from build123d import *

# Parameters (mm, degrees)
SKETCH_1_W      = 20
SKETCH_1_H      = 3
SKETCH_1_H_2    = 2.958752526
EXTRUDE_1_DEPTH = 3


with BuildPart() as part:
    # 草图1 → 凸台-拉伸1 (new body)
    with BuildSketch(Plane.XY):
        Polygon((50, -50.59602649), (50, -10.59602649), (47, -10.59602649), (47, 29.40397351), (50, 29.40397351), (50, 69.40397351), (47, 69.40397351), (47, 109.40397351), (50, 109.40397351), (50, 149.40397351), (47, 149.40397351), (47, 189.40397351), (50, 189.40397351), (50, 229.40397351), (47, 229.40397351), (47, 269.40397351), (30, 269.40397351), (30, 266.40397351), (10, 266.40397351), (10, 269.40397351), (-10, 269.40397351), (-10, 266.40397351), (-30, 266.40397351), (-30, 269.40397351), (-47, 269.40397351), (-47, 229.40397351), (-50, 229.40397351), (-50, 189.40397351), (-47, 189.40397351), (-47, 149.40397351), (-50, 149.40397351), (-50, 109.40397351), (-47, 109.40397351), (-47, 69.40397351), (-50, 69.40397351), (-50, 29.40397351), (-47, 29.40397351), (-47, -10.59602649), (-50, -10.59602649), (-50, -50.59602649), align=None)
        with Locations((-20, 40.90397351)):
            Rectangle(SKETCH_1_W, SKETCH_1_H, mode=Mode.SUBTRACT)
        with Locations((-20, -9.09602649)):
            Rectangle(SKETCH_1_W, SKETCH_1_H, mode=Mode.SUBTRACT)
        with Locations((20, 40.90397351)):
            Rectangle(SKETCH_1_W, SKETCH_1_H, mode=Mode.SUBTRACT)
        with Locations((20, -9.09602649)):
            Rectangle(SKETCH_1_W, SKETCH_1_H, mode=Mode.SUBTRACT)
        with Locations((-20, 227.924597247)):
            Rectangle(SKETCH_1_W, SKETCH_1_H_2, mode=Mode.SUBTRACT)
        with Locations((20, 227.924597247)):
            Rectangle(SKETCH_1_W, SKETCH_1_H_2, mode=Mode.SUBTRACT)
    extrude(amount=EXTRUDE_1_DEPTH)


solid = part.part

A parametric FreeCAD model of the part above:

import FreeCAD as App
import Part
import Sketcher
from FreeCAD import Vector

doc = App.newDocument("Part")
body = doc.addObject("PartDesign::Body", "Body")

# Sketch on XY plane
sketch1 = body.newObject("Sketcher::SketchObject", "Sketch")
sketch1.AttachmentSupport = (doc.getObject("XY_Plane"), [""])
sketch1.MapMode = "FlatFace"
sketch1.addGeometry(Part.LineSegment(Vector(50, -50.6, 0), Vector(50, -10.6, 0)), False)
sketch1.addGeometry(Part.LineSegment(Vector(50, -10.6, 0), Vector(47, -10.6, 0)), False)
sketch1.addGeometry(Part.LineSegment(Vector(47, -10.6, 0), Vector(47, 29.4, 0)), False)
sketch1.addGeometry(Part.LineSegment(Vector(47, 29.4, 0), Vector(50, 29.4, 0)), False)
sketch1.addGeometry(Part.LineSegment(Vector(50, 29.4, 0), Vector(50, 69.4, 0)), False)
sketch1.addGeometry(Part.LineSegment(Vector(50, 69.4, 0), Vector(47, 69.4, 0)), False)
sketch1.addGeometry(Part.LineSegment(Vector(47, 69.4, 0), Vector(47, 109.4, 0)), False)
sketch1.addGeometry(Part.LineSegment(Vector(47, 109.4, 0), Vector(50, 109.4, 0)), False)
sketch1.addGeometry(Part.LineSegment(Vector(50, 109.4, 0), Vector(50, 149.4, 0)), False)
sketch1.addGeometry(Part.LineSegment(Vector(50, 149.4, 0), Vector(47, 149.4, 0)), False)
sketch1.addGeometry(Part.LineSegment(Vector(47, 149.4, 0), Vector(47, 189.4, 0)), False)
sketch1.addGeometry(Part.LineSegment(Vector(47, 189.4, 0), Vector(50, 189.4, 0)), False)
sketch1.addGeometry(Part.LineSegment(Vector(50, 189.4, 0), Vector(50, 229.4, 0)), False)
sketch1.addGeometry(Part.LineSegment(Vector(50, 229.4, 0), Vector(47, 229.4, 0)), False)
sketch1.addGeometry(Part.LineSegment(Vector(47, 229.4, 0), Vector(47, 269.4, 0)), False)
sketch1.addGeometry(Part.LineSegment(Vector(47, 269.4, 0), Vector(30, 269.4, 0)), False)
sketch1.addGeometry(Part.LineSegment(Vector(30, 269.4, 0), Vector(30, 266.4, 0)), False)
sketch1.addGeometry(Part.LineSegment(Vector(30, 266.4, 0), Vector(10, 266.4, 0)), False)
sketch1.addGeometry(Part.LineSegment(Vector(10, 266.4, 0), Vector(10, 269.4, 0)), False)
sketch1.addGeometry(Part.LineSegment(Vector(10, 269.4, 0), Vector(-10, 269.4, 0)), False)
sketch1.addGeometry(Part.LineSegment(Vector(-10, 269.4, 0), Vector(-10, 266.4, 0)), False)
sketch1.addGeometry(Part.LineSegment(Vector(-10, 266.4, 0), Vector(-30, 266.4, 0)), False)
sketch1.addGeometry(Part.LineSegment(Vector(-30, 266.4, 0), Vector(-30, 269.4, 0)), False)
sketch1.addGeometry(Part.LineSegment(Vector(-30, 269.4, 0), Vector(-47, 269.4, 0)), False)
sketch1.addGeometry(Part.LineSegment(Vector(-47, 269.4, 0), Vector(-47, 229.4, 0)), False)
sketch1.addGeometry(Part.LineSegment(Vector(-47, 229.4, 0), Vector(-50, 229.4, 0)), False)
sketch1.addGeometry(Part.LineSegment(Vector(-50, 229.4, 0), Vector(-50, 189.4, 0)), False)
sketch1.addGeometry(Part.LineSegment(Vector(-50, 189.4, 0), Vector(-47, 189.4, 0)), False)
sketch1.addGeometry(Part.LineSegment(Vector(-47, 189.4, 0), Vector(-47, 149.4, 0)), False)
sketch1.addGeometry(Part.LineSegment(Vector(-47, 149.4, 0), Vector(-50, 149.4, 0)), False)
sketch1.addGeometry(Part.LineSegment(Vector(-50, 149.4, 0), Vector(-50, 109.4, 0)), False)
sketch1.addGeometry(Part.LineSegment(Vector(-50, 109.4, 0), Vector(-47, 109.4, 0)), False)
sketch1.addGeometry(Part.LineSegment(Vector(-47, 109.4, 0), Vector(-47, 69.4, 0)), False)
sketch1.addGeometry(Part.LineSegment(Vector(-47, 69.4, 0), Vector(-50, 69.4, 0)), False)
sketch1.addGeometry(Part.LineSegment(Vector(-50, 69.4, 0), Vector(-50, 29.4, 0)), False)
sketch1.addGeometry(Part.LineSegment(Vector(-50, 29.4, 0), Vector(-47, 29.4, 0)), False)
sketch1.addGeometry(Part.LineSegment(Vector(-47, 29.4, 0), Vector(-47, -10.6, 0)), False)
sketch1.addGeometry(Part.LineSegment(Vector(-47, -10.6, 0), Vector(-50, -10.6, 0)), False)
sketch1.addGeometry(Part.LineSegment(Vector(-50, -10.6, 0), Vector(-50, -50.6, 0)), False)
sketch1.addGeometry(Part.LineSegment(Vector(-50, -50.6, 0), Vector(50, -50.6, 0)), False)
sketch1.addGeometry(Part.LineSegment(Vector(-10, -10.6, 0), Vector(-30, -10.6, 0)), False)
sketch1.addGeometry(Part.LineSegment(Vector(-30, -10.6, 0), Vector(-30, -7.6, 0)), False)
sketch1.addGeometry(Part.LineSegment(Vector(-30, -7.6, 0), Vector(-10, -7.6, 0)), False)
sketch1.addGeometry(Part.LineSegment(Vector(-10, -7.6, 0), Vector(-10, -10.6, 0)), False)
sketch1.addGeometry(Part.LineSegment(Vector(-10, 39.4, 0), Vector(-30, 39.4, 0)), False)
sketch1.addGeometry(Part.LineSegment(Vector(-30, 39.4, 0), Vector(-30, 42.4, 0)), False)
sketch1.addGeometry(Part.LineSegment(Vector(-30, 42.4, 0), Vector(-10, 42.4, 0)), False)
sketch1.addGeometry(Part.LineSegment(Vector(-10, 42.4, 0), Vector(-10, 39.4, 0)), False)
sketch1.addGeometry(Part.LineSegment(Vector(30, -10.6, 0), Vector(10, -10.6, 0)), False)
sketch1.addGeometry(Part.LineSegment(Vector(10, -10.6, 0), Vector(10, -7.6, 0)), False)
sketch1.addGeometry(Part.LineSegment(Vector(10, -7.6, 0), Vector(30, -7.6, 0)), False)
sketch1.addGeometry(Part.LineSegment(Vector(30, -7.6, 0), Vector(30, -10.6, 0)), False)
sketch1.addGeometry(Part.LineSegment(Vector(30, 39.4, 0), Vector(10, 39.4, 0)), False)
sketch1.addGeometry(Part.LineSegment(Vector(10, 39.4, 0), Vector(10, 42.4, 0)), False)
sketch1.addGeometry(Part.LineSegment(Vector(10, 42.4, 0), Vector(30, 42.4, 0)), False)
sketch1.addGeometry(Part.LineSegment(Vector(30, 42.4, 0), Vector(30, 39.4, 0)), False)
sketch1.addGeometry(Part.LineSegment(Vector(-10, 226.4, 0), Vector(-30, 226.4, 0)), False)
sketch1.addGeometry(Part.LineSegment(Vector(-30, 226.4, 0), Vector(-30, 229.4, 0)), False)
sketch1.addGeometry(Part.LineSegment(Vector(-30, 229.4, 0), Vector(-10, 229.4, 0)), False)
sketch1.addGeometry(Part.LineSegment(Vector(-10, 229.4, 0), Vector(-10, 226.4, 0)), False)
sketch1.addGeometry(Part.LineSegment(Vector(30, 226.4, 0), Vector(10, 226.4, 0)), False)
sketch1.addGeometry(Part.LineSegment(Vector(10, 226.4, 0), Vector(10, 229.4, 0)), False)
sketch1.addGeometry(Part.LineSegment(Vector(10, 229.4, 0), Vector(30, 229.4, 0)), False)
sketch1.addGeometry(Part.LineSegment(Vector(30, 229.4, 0), Vector(30, 226.4, 0)), False)
sketch1.addConstraint(Sketcher.Constraint("Coincident", 0, 2, 1, 1))
sketch1.addConstraint(Sketcher.Constraint("Coincident", 1, 2, 2, 1))
sketch1.addConstraint(Sketcher.Constraint("Coincident", 2, 2, 3, 1))
sketch1.addConstraint(Sketcher.Constraint("Coincident", 3, 2, 4, 1))
sketch1.addConstraint(Sketcher.Constraint("Coincident", 4, 2, 5, 1))
sketch1.addConstraint(Sketcher.Constraint("Coincident", 5, 2, 6, 1))
sketch1.addConstraint(Sketcher.Constraint("Coincident", 6, 2, 7, 1))
sketch1.addConstraint(Sketcher.Constraint("Coincident", 7, 2, 8, 1))
sketch1.addConstraint(Sketcher.Constraint("Coincident", 8, 2, 9, 1))
sketch1.addConstraint(Sketcher.Constraint("Coincident", 9, 2, 10, 1))
sketch1.addConstraint(Sketcher.Constraint("Coincident", 10, 2, 11, 1))
sketch1.addConstraint(Sketcher.Constraint("Coincident", 11, 2, 12, 1))
sketch1.addConstraint(Sketcher.Constraint("Coincident", 12, 2, 13, 1))
sketch1.addConstraint(Sketcher.Constraint("Coincident", 13, 2, 14, 1))
sketch1.addConstraint(Sketcher.Constraint("Coincident", 14, 2, 15, 1))
sketch1.addConstraint(Sketcher.Constraint("Coincident", 15, 2, 16, 1))
sketch1.addConstraint(Sketcher.Constraint("Coincident", 16, 2, 17, 1))
sketch1.addConstraint(Sketcher.Constraint("Coincident", 17, 2, 18, 1))
sketch1.addConstraint(Sketcher.Constraint("Coincident", 18, 2, 19, 1))
sketch1.addConstraint(Sketcher.Constraint("Coincident", 19, 2, 20, 1))
sketch1.addConstraint(Sketcher.Constraint("Coincident", 20, 2, 21, 1))
sketch1.addConstraint(Sketcher.Constraint("Coincident", 21, 2, 22, 1))
sketch1.addConstraint(Sketcher.Constraint("Coincident", 22, 2, 23, 1))
sketch1.addConstraint(Sketcher.Constraint("Coincident", 23, 2, 24, 1))
sketch1.addConstraint(Sketcher.Constraint("Coincident", 24, 2, 25, 1))
sketch1.addConstraint(Sketcher.Constraint("Coincident", 25, 2, 26, 1))
sketch1.addConstraint(Sketcher.Constraint("Coincident", 26, 2, 27, 1))
sketch1.addConstraint(Sketcher.Constraint("Coincident", 27, 2, 28, 1))
sketch1.addConstraint(Sketcher.Constraint("Coincident", 28, 2, 29, 1))
sketch1.addConstraint(Sketcher.Constraint("Coincident", 29, 2, 30, 1))
sketch1.addConstraint(Sketcher.Constraint("Coincident", 30, 2, 31, 1))
sketch1.addConstraint(Sketcher.Constraint("Coincident", 31, 2, 32, 1))
sketch1.addConstraint(Sketcher.Constraint("Coincident", 32, 2, 33, 1))
sketch1.addConstraint(Sketcher.Constraint("Coincident", 33, 2, 34, 1))
sketch1.addConstraint(Sketcher.Constraint("Coincident", 34, 2, 35, 1))
sketch1.addConstraint(Sketcher.Constraint("Coincident", 35, 2, 36, 1))
sketch1.addConstraint(Sketcher.Constraint("Coincident", 36, 2, 37, 1))
sketch1.addConstraint(Sketcher.Constraint("Coincident", 37, 2, 38, 1))
sketch1.addConstraint(Sketcher.Constraint("Coincident", 38, 2, 39, 1))
sketch1.addConstraint(Sketcher.Constraint("Coincident", 39, 2, 0, 1))
sketch1.addConstraint(Sketcher.Constraint("Coincident", 40, 2, 41, 1))
sketch1.addConstraint(Sketcher.Constraint("Coincident", 41, 2, 42, 1))
sketch1.addConstraint(Sketcher.Constraint("Coincident", 42, 2, 43, 1))
sketch1.addConstraint(Sketcher.Constraint("Coincident", 43, 2, 40, 1))
sketch1.addConstraint(Sketcher.Constraint("Coincident", 44, 2, 45, 1))
sketch1.addConstraint(Sketcher.Constraint("Coincident", 45, 2, 46, 1))
sketch1.addConstraint(Sketcher.Constraint("Coincident", 46, 2, 47, 1))
sketch1.addConstraint(Sketcher.Constraint("Coincident", 47, 2, 44, 1))
sketch1.addConstraint(Sketcher.Constraint("Coincident", 48, 2, 49, 1))
sketch1.addConstraint(Sketcher.Constraint("Coincident", 49, 2, 50, 1))
sketch1.addConstraint(Sketcher.Constraint("Coincident", 50, 2, 51, 1))
sketch1.addConstraint(Sketcher.Constraint("Coincident", 51, 2, 48, 1))
sketch1.addConstraint(Sketcher.Constraint("Coincident", 52, 2, 53, 1))
sketch1.addConstraint(Sketcher.Constraint("Coincident", 53, 2, 54, 1))
sketch1.addConstraint(Sketcher.Constraint("Coincident", 54, 2, 55, 1))
sketch1.addConstraint(Sketcher.Constraint("Coincident", 55, 2, 52, 1))
sketch1.addConstraint(Sketcher.Constraint("Coincident", 56, 2, 57, 1))
sketch1.addConstraint(Sketcher.Constraint("Coincident", 57, 2, 58, 1))
sketch1.addConstraint(Sketcher.Constraint("Coincident", 58, 2, 59, 1))
sketch1.addConstraint(Sketcher.Constraint("Coincident", 59, 2, 56, 1))
sketch1.addConstraint(Sketcher.Constraint("Coincident", 60, 2, 61, 1))
sketch1.addConstraint(Sketcher.Constraint("Coincident", 61, 2, 62, 1))
sketch1.addConstraint(Sketcher.Constraint("Coincident", 62, 2, 63, 1))
sketch1.addConstraint(Sketcher.Constraint("Coincident", 63, 2, 60, 1))
sketch1.addConstraint(Sketcher.Constraint("Vertical", 0))
sketch1.addConstraint(Sketcher.Constraint("Horizontal", 1))
sketch1.addConstraint(Sketcher.Constraint("Vertical", 2))
sketch1.addConstraint(Sketcher.Constraint("Horizontal", 3))
sketch1.addConstraint(Sketcher.Constraint("Vertical", 4))
sketch1.addConstraint(Sketcher.Constraint("Horizontal", 5))
sketch1.addConstraint(Sketcher.Constraint("Vertical", 6))
sketch1.addConstraint(Sketcher.Constraint("Horizontal", 7))
sketch1.addConstraint(Sketcher.Constraint("Vertical", 8))
sketch1.addConstraint(Sketcher.Constraint("Horizontal", 9))
sketch1.addConstraint(Sketcher.Constraint("Vertical", 10))
sketch1.addConstraint(Sketcher.Constraint("Horizontal", 11))
sketch1.addConstraint(Sketcher.Constraint("Vertical", 12))
sketch1.addConstraint(Sketcher.Constraint("Horizontal", 13))
sketch1.addConstraint(Sketcher.Constraint("Vertical", 14))
sketch1.addConstraint(Sketcher.Constraint("Horizontal", 15))
sketch1.addConstraint(Sketcher.Constraint("Vertical", 16))
sketch1.addConstraint(Sketcher.Constraint("Horizontal", 17))
sketch1.addConstraint(Sketcher.Constraint("Vertical", 18))
sketch1.addConstraint(Sketcher.Constraint("Horizontal", 19))
sketch1.addConstraint(Sketcher.Constraint("Vertical", 20))
sketch1.addConstraint(Sketcher.Constraint("Horizontal", 21))
sketch1.addConstraint(Sketcher.Constraint("Vertical", 22))
sketch1.addConstraint(Sketcher.Constraint("Horizontal", 23))
sketch1.addConstraint(Sketcher.Constraint("Vertical", 24))
sketch1.addConstraint(Sketcher.Constraint("Horizontal", 25))
sketch1.addConstraint(Sketcher.Constraint("Vertical", 26))
sketch1.addConstraint(Sketcher.Constraint("Horizontal", 27))
sketch1.addConstraint(Sketcher.Constraint("Vertical", 28))
sketch1.addConstraint(Sketcher.Constraint("Horizontal", 29))
sketch1.addConstraint(Sketcher.Constraint("Vertical", 30))
sketch1.addConstraint(Sketcher.Constraint("Horizontal", 31))
sketch1.addConstraint(Sketcher.Constraint("Vertical", 32))
sketch1.addConstraint(Sketcher.Constraint("Horizontal", 33))
sketch1.addConstraint(Sketcher.Constraint("Vertical", 34))
sketch1.addConstraint(Sketcher.Constraint("Horizontal", 35))
sketch1.addConstraint(Sketcher.Constraint("Vertical", 36))
sketch1.addConstraint(Sketcher.Constraint("Horizontal", 37))
sketch1.addConstraint(Sketcher.Constraint("Vertical", 38))
sketch1.addConstraint(Sketcher.Constraint("Horizontal", 39))
sketch1.addConstraint(Sketcher.Constraint("Horizontal", 40))
sketch1.addConstraint(Sketcher.Constraint("Vertical", 41))
sketch1.addConstraint(Sketcher.Constraint("Horizontal", 42))
sketch1.addConstraint(Sketcher.Constraint("Vertical", 43))
sketch1.addConstraint(Sketcher.Constraint("Horizontal", 44))
sketch1.addConstraint(Sketcher.Constraint("Vertical", 45))
sketch1.addConstraint(Sketcher.Constraint("Horizontal", 46))
sketch1.addConstraint(Sketcher.Constraint("Vertical", 47))
sketch1.addConstraint(Sketcher.Constraint("Horizontal", 48))
sketch1.addConstraint(Sketcher.Constraint("Vertical", 49))
sketch1.addConstraint(Sketcher.Constraint("Horizontal", 50))
sketch1.addConstraint(Sketcher.Constraint("Vertical", 51))
sketch1.addConstraint(Sketcher.Constraint("Horizontal", 52))
sketch1.addConstraint(Sketcher.Constraint("Vertical", 53))
sketch1.addConstraint(Sketcher.Constraint("Horizontal", 54))
sketch1.addConstraint(Sketcher.Constraint("Vertical", 55))
sketch1.addConstraint(Sketcher.Constraint("Horizontal", 56))
sketch1.addConstraint(Sketcher.Constraint("Vertical", 57))
sketch1.addConstraint(Sketcher.Constraint("Horizontal", 58))
sketch1.addConstraint(Sketcher.Constraint("Vertical", 59))
sketch1.addConstraint(Sketcher.Constraint("Horizontal", 60))
sketch1.addConstraint(Sketcher.Constraint("Vertical", 61))
sketch1.addConstraint(Sketcher.Constraint("Horizontal", 62))
sketch1.addConstraint(Sketcher.Constraint("Vertical", 63))
sketch1.addConstraint(Sketcher.Constraint("Symmetric", 17, 2, 20, 2, -2))
sketch1.addConstraint(Sketcher.Constraint("Symmetric", 15, 2, 22, 2, -2))
sketch1.addConstraint(Sketcher.Constraint("Symmetric", 13, 2, 24, 2, -2))
sketch1.addConstraint(Sketcher.Constraint("Symmetric", 11, 2, 26, 2, -2))
sketch1.addConstraint(Sketcher.Constraint("Symmetric", 9, 2, 28, 2, -2))
sketch1.addConstraint(Sketcher.Constraint("Symmetric", 7, 2, 30, 2, -2))
sketch1.addConstraint(Sketcher.Constraint("Symmetric", 5, 2, 32, 2, -2))
sketch1.addConstraint(Sketcher.Constraint("Symmetric", 3, 2, 34, 2, -2))
sketch1.addConstraint(Sketcher.Constraint("Symmetric", 1, 2, 36, 2, -2))
sketch1.addConstraint(Sketcher.Constraint("Symmetric", 43, 2, 48, 2, -2))
sketch1.addConstraint(Sketcher.Constraint("Symmetric", 41, 2, 50, 2, -2))
sketch1.addConstraint(Sketcher.Constraint("Symmetric", 47, 2, 52, 2, -2))
sketch1.addConstraint(Sketcher.Constraint("Symmetric", 45, 2, 54, 2, -2))
sketch1.addConstraint(Sketcher.Constraint("Symmetric", 59, 2, 60, 2, -2))
sketch1.addConstraint(Sketcher.Constraint("Symmetric", 57, 2, 62, 2, -2))
sketch1.addConstraint(Sketcher.Constraint("Horizontal", 15, 2, 18, 2))
sketch1.addConstraint(Sketcher.Constraint("Horizontal", 37, 2, 40, 2))
sketch1.addConstraint(Sketcher.Constraint("Horizontal", 25, 2, 57, 2))
sketch1.addConstraint(Sketcher.Constraint("Vertical", 0, 2, 3, 2))
sketch1.addConstraint(Sketcher.Constraint("Vertical", 2, 2, 5, 2))
sketch1.addConstraint(Sketcher.Constraint("Vertical", 4, 2, 7, 2))
sketch1.addConstraint(Sketcher.Constraint("Vertical", 6, 2, 9, 2))
sketch1.addConstraint(Sketcher.Constraint("Vertical", 8, 2, 11, 2))
sketch1.addConstraint(Sketcher.Constraint("Vertical", 10, 2, 13, 2))
sketch1.addConstraint(Sketcher.Constraint("Vertical", 34, 2, 37, 2))
sketch1.addConstraint(Sketcher.Constraint("Vertical", 22, 2, 40, 2))
sketch1.addConstraint(Sketcher.Constraint("Vertical", 20, 2, 42, 2))
sketch1.addConstraint(Sketcher.Constraint("Vertical", 41, 2, 44, 2))
sketch1.addConstraint(Sketcher.Constraint("Vertical", 43, 2, 46, 2))
sketch1.addConstraint(Sketcher.Constraint("Vertical", 45, 2, 56, 2))
sketch1.addConstraint(Sketcher.Constraint("Vertical", 47, 2, 58, 2))
sketch1.addConstraint(Sketcher.Constraint("Equal", 17, 19))
sketch1.addConstraint(Sketcher.Constraint("Equal", 0, 2))
sketch1.addConstraint(Sketcher.Constraint("Equal", 2, 4))
sketch1.addConstraint(Sketcher.Constraint("Equal", 4, 6))
sketch1.addConstraint(Sketcher.Constraint("Equal", 6, 8))
sketch1.addConstraint(Sketcher.Constraint("Equal", 8, 10))
sketch1.addConstraint(Sketcher.Constraint("Equal", 10, 12))
sketch1.addConstraint(Sketcher.Constraint("Equal", 12, 14))
sketch1.addConstraint(Sketcher.Constraint("Equal", 37, 16))
sketch1.addConstraint(Sketcher.Constraint("Equal", 22, 41))
sketch1.addConstraint(Sketcher.Constraint("Equal", 43, 45))
sketch1.addConstraint(Sketcher.Constraint("DistanceX", 1, 2, 1, 1, 3.0))
sketch1.addConstraint(Sketcher.Constraint("DistanceX", 15, 2, 15, 1, 17.0))
sketch1.addConstraint(Sketcher.Constraint("DistanceX", 17, 2, 17, 1, 20.0))
sketch1.addConstraint(Sketcher.Constraint("DistanceY", 0, 1, 0, 2, 40.0))
sketch1.addConstraint(Sketcher.Constraint("DistanceY", 57, 1, 57, 2, 2.958753))
sketch1.addConstraint(Sketcher.Constraint("DistanceY", -1, 1, 56, 2, 226.445221))
sketch1.addConstraint(Sketcher.Constraint("DistanceY", -1, 1, 44, 2, 39.403974))
pad1 = body.newObject("PartDesign::Pad", "Pad")
pad1.Profile = sketch1
pad1.Length = 3

doc.recompute()
